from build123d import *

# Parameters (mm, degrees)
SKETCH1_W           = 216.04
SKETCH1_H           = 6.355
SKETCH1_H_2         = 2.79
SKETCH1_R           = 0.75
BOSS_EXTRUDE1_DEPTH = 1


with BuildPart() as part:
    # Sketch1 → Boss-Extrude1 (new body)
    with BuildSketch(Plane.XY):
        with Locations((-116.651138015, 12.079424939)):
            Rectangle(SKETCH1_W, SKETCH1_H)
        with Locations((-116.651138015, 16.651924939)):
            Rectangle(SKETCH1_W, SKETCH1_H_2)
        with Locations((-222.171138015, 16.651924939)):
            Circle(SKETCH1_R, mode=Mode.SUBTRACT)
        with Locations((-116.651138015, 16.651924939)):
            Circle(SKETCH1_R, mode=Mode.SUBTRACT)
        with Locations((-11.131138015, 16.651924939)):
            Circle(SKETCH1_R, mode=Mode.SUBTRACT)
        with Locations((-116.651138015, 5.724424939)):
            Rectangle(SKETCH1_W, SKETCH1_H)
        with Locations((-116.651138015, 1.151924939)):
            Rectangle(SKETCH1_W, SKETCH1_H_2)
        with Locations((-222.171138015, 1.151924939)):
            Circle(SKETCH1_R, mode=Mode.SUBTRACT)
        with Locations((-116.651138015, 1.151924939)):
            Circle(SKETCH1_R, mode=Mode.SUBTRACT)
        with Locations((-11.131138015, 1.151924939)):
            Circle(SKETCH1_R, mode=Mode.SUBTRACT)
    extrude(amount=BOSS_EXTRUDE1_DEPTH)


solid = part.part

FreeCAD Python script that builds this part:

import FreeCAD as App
import Part
import Sketcher
from FreeCAD import Vector
Q = App.Units.Quantity


def add_polygon(sketch, points):
    """Adds a closed chain of lines whose ends are joined by coincident constraints."""
    first, n = sketch.GeometryCount, len(points)
    for a, b in zip(points, points[1:] + points[:1]):
        sketch.addGeometry(Part.LineSegment(App.Vector(*a, 0), App.Vector(*b, 0)), False)
    for i in range(n):
        sketch.addConstraint(Sketcher.Constraint("Coincident", first + i, 2, first + (i + 1) % n, 1))

doc = App.newDocument("Part")
body = doc.addObject("PartDesign::Body", "Body")

# Sketch on XY plane
sketch1 = doc.addObject("Sketcher::SketchObject", "Sketch")
body.addObject(sketch1)
sketch1.AttachmentSupport = (doc.XY_Plane, [""])
sketch1.MapMode = "FlatFace"
add_polygon(sketch1, [(-224.671138, 18.046925), (-224.671138, -0.243075), (-8.631138, -0.243075), (-8.631138, 18.046925)])  # lines 0-3
sketch1.addGeometry(Part.Circle(Vector(-222.171138, 1.151925, 0), Vector(0, 0, 1), 0.75), False)  # 4
sketch1.addGeometry(Part.Circle(Vector(-116.651138, 1.151925, 0), Vector(0, 0, 1), 0.75), False)  # 5
sketch1.addGeometry(Part.Circle(Vector(-11.131138, 1.151925, 0), Vector(0, 0, 1), 0.75), False)  # 6
sketch1.addGeometry(Part.Circle(Vector(-222.171138, 16.651925, 0), Vector(0, 0, 1), 0.75), False)  # 7
sketch1.addGeometry(Part.Circle(Vector(-116.651138, 16.651925, 0), Vector(0, 0, 1), 0.75), False)  # 8
sketch1.addGeometry(Part.Circle(Vector(-11.131138, 16.651925, 0), Vector(0, 0, 1), 0.75), False)  # 9
sketch1.addConstraint(Sketcher.Constraint("Vertical", 0))
sketch1.addConstraint(Sketcher.Constraint("Horizontal", 1))
sketch1.addConstraint(Sketcher.Constraint("Vertical", 2))
sketch1.addConstraint(Sketcher.Constraint("Horizontal", 3))
sketch1.addConstraint(Sketcher.Constraint("Equal", 4, 5))
sketch1.addConstraint(Sketcher.Constraint("Equal", 5, 6))
sketch1.addConstraint(Sketcher.Constraint("Equal", 6, 7))
sketch1.addConstraint(Sketcher.Constraint("Equal", 7, 8))
sketch1.addConstraint(Sketcher.Constraint("Equal", 8, 9))
sketch1.addConstraint(Sketcher.Constraint("Horizontal", 4, 3, 5, 3))
sketch1.addConstraint(Sketcher.Constraint("Horizontal", 5, 3, 6, 3))
sketch1.addConstraint(Sketcher.Constraint("Horizontal", 7, 3, 8, 3))
sketch1.addConstraint(Sketcher.Constraint("Horizontal", 8, 3, 9, 3))
sketch1.addConstraint(Sketcher.Constraint("Vertical", 4, 3, 7, 3))
sketch1.addConstraint(Sketcher.Constraint("Vertical", 5, 3, 8, 3))
sketch1.addConstraint(Sketcher.Constraint("Vertical", 6, 3, 9, 3))
sketch1.addConstraint(Sketcher.Constraint("Diameter", 4, Q("1.5 mm")))
sketch1.addConstraint(Sketcher.Constraint("DistanceX", 1, 1, 1, 2, Q("216.04 mm")))
sketch1.addConstraint(Sketcher.Constraint("DistanceY", 0, 2, 0, 1, Q("18.29 mm")))
sketch1.addConstraint(Sketcher.Constraint("DistanceY", 4, 3, 7, 3, Q("15.5 mm")))
sketch1.addConstraint(Sketcher.Constraint("DistanceX", 0, 2, 4, 3, Q("2.5 mm")))
sketch1.addConstraint(Sketcher.Constraint("DistanceX", 6, 3, 1, 2, Q("2.5 mm")))
sketch1.addConstraint(Sketcher.Constraint("DistanceX", 4, 3, 5, 3, Q("105.52 mm")))
sketch1.addConstraint(Sketcher.Constraint("DistanceY", 0, 2, 4, 3, Q("1.395 mm")))
sketch1.addConstraint(Sketcher.Constraint("DistanceX", 4, 3, -1, 1, Q("222.171138 mm")))
sketch1.addConstraint(Sketcher.Constraint("DistanceY", -1, 1, 4, 3, Q("1.151925 mm")))
pad1 = doc.addObject("PartDesign::Pad", "Pad")
body.addObject(pad1)
pad1.Profile = sketch1
pad1.Length = 1

doc.recompute()
